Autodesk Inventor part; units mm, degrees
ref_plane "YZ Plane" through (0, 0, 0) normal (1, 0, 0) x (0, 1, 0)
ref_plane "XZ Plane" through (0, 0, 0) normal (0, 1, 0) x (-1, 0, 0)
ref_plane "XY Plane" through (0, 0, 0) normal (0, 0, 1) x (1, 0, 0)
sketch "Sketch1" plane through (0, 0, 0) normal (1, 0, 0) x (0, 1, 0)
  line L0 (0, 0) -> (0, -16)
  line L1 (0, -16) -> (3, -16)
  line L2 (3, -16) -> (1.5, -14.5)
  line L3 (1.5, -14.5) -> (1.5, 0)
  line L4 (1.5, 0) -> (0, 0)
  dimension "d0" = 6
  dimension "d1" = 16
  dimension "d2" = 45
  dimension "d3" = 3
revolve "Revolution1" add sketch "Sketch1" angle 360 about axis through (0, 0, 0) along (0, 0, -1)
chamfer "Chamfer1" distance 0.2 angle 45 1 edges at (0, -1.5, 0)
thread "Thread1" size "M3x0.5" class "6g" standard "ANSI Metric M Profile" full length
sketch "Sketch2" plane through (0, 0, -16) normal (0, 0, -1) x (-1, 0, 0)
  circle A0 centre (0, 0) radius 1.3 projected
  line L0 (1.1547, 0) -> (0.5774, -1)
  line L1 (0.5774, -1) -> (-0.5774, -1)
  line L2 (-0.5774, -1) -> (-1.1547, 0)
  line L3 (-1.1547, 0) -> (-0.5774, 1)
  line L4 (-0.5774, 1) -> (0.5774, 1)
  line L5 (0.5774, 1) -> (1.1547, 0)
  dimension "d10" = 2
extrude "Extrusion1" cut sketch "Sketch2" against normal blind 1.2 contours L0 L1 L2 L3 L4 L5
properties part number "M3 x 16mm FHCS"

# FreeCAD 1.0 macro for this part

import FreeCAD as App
import Part
import Sketcher
from FreeCAD import Vector
Q = App.Units.Quantity


def edges_at(feature, points):
    """Names of the edges that pass closest to the given points."""
    edges = feature.Shape.Edges
    near = lambda p: min(range(len(edges)), key=lambda i: edges[i].distToShape(Part.Vertex(*p))[0])
    return sorted({f"Edge{near(p) + 1}" for p in points})


def add_polygon(sketch, points):
    """Adds a closed chain of lines whose ends are joined by coincident constraints."""
    first, n = sketch.GeometryCount, len(points)
    for a, b in zip(points, points[1:] + points[:1]):
        sketch.addGeometry(Part.LineSegment(App.Vector(*a, 0), App.Vector(*b, 0)), False)
    for i in range(n):
        sketch.addConstraint(Sketcher.Constraint("Coincident", first + i, 2, first + (i + 1) % n, 1))

doc = App.newDocument("Part")
body = doc.addObject("PartDesign::Body", "Body")

sketch1 = doc.addObject("Sketcher::SketchObject", "Sketch")
body.addObject(sketch1)
sketch1.AttachmentSupport = (doc.YZ_Plane, [""])
sketch1.MapMode = "FlatFace"
add_polygon(sketch1, [(1.5, 0), (0, 0), (0, -16), (3, -16), (1.5, -14.5)])
sketch1.addConstraint([
    Sketcher.Constraint("Horizontal", 0),
    Sketcher.Constraint("Vertical", 1),
    Sketcher.Constraint("Horizontal", 2),
    Sketcher.Constraint("Vertical", 4),
    Sketcher.Constraint("Coincident", 0, 2, -1, 1),
    Sketcher.Constraint("DistanceX", 2, 1, 2, 2, Q("3 mm")),
    Sketcher.Constraint("DistanceY", 1, 2, 1, 1, Q("16 mm")),
    Sketcher.Constraint("Angle", 3, Q("135 deg")),
    Sketcher.Constraint("DistanceX", 0, 2, 0, 1, Q("1.5 mm")),
])
revolution = doc.addObject("PartDesign::Revolution", "Revolution")
body.addObject(revolution)
revolution.Profile = sketch1
revolution.ReferenceAxis = (sketch1, ["V_Axis"])
revolution.Angle = 360
doc.recompute()

chamfer = doc.addObject("PartDesign::Chamfer", "Chamfer")
body.addObject(chamfer)
chamfer.Base = (revolution, edges_at(revolution, [(0, -1.5, 0)]))
chamfer.Size = 0.2

sketch2 = doc.addObject("Sketcher::SketchObject", "Sketch001")
body.addObject(sketch2)
sketch2.AttachmentSupport = (doc.XY_Plane, [""])
sketch2.MapMode = "FlatFace"
sketch2.AttachmentOffset = App.Placement(Vector(0, 0, -16), App.Rotation())
add_polygon(sketch2, [(-0.6, -1), (-1.2, 0), (-0.6, 1), (0.6, 1), (1.2, 0), (0.6, -1)])
sketch2.addConstraint([
    Sketcher.Constraint("Horizontal", 2),
    Sketcher.Constraint("Horizontal", 5),
    Sketcher.Constraint("Symmetric", 0, 2, 3, 2, -1, 1),
    Sketcher.Constraint("Symmetric", 1, 2, 4, 2, -1, 1),
    Sketcher.Constraint("PointOnObject", 0, 2, -1),
    Sketcher.Constraint("Parallel", 0, 3),
    Sketcher.Constraint("Vertical", 2, 2, 4, 2),
    Sketcher.Constraint("DistanceY", 4, 2, 2, 2, Q("2 mm")),
    Sketcher.Constraint("DistanceX", 2, 1, 2, 2, Q("1.1548 mm")),
    Sketcher.Constraint("DistanceX", 0, 2, 2, 2, Q("1.732 mm")),
])
pocket1 = doc.addObject("PartDesign::Pocket", "Pocket")
body.addObject(pocket1)
pocket1.Profile = sketch2
pocket1.Length = 1.2
pocket1.Reversed = True

doc.recompute()
